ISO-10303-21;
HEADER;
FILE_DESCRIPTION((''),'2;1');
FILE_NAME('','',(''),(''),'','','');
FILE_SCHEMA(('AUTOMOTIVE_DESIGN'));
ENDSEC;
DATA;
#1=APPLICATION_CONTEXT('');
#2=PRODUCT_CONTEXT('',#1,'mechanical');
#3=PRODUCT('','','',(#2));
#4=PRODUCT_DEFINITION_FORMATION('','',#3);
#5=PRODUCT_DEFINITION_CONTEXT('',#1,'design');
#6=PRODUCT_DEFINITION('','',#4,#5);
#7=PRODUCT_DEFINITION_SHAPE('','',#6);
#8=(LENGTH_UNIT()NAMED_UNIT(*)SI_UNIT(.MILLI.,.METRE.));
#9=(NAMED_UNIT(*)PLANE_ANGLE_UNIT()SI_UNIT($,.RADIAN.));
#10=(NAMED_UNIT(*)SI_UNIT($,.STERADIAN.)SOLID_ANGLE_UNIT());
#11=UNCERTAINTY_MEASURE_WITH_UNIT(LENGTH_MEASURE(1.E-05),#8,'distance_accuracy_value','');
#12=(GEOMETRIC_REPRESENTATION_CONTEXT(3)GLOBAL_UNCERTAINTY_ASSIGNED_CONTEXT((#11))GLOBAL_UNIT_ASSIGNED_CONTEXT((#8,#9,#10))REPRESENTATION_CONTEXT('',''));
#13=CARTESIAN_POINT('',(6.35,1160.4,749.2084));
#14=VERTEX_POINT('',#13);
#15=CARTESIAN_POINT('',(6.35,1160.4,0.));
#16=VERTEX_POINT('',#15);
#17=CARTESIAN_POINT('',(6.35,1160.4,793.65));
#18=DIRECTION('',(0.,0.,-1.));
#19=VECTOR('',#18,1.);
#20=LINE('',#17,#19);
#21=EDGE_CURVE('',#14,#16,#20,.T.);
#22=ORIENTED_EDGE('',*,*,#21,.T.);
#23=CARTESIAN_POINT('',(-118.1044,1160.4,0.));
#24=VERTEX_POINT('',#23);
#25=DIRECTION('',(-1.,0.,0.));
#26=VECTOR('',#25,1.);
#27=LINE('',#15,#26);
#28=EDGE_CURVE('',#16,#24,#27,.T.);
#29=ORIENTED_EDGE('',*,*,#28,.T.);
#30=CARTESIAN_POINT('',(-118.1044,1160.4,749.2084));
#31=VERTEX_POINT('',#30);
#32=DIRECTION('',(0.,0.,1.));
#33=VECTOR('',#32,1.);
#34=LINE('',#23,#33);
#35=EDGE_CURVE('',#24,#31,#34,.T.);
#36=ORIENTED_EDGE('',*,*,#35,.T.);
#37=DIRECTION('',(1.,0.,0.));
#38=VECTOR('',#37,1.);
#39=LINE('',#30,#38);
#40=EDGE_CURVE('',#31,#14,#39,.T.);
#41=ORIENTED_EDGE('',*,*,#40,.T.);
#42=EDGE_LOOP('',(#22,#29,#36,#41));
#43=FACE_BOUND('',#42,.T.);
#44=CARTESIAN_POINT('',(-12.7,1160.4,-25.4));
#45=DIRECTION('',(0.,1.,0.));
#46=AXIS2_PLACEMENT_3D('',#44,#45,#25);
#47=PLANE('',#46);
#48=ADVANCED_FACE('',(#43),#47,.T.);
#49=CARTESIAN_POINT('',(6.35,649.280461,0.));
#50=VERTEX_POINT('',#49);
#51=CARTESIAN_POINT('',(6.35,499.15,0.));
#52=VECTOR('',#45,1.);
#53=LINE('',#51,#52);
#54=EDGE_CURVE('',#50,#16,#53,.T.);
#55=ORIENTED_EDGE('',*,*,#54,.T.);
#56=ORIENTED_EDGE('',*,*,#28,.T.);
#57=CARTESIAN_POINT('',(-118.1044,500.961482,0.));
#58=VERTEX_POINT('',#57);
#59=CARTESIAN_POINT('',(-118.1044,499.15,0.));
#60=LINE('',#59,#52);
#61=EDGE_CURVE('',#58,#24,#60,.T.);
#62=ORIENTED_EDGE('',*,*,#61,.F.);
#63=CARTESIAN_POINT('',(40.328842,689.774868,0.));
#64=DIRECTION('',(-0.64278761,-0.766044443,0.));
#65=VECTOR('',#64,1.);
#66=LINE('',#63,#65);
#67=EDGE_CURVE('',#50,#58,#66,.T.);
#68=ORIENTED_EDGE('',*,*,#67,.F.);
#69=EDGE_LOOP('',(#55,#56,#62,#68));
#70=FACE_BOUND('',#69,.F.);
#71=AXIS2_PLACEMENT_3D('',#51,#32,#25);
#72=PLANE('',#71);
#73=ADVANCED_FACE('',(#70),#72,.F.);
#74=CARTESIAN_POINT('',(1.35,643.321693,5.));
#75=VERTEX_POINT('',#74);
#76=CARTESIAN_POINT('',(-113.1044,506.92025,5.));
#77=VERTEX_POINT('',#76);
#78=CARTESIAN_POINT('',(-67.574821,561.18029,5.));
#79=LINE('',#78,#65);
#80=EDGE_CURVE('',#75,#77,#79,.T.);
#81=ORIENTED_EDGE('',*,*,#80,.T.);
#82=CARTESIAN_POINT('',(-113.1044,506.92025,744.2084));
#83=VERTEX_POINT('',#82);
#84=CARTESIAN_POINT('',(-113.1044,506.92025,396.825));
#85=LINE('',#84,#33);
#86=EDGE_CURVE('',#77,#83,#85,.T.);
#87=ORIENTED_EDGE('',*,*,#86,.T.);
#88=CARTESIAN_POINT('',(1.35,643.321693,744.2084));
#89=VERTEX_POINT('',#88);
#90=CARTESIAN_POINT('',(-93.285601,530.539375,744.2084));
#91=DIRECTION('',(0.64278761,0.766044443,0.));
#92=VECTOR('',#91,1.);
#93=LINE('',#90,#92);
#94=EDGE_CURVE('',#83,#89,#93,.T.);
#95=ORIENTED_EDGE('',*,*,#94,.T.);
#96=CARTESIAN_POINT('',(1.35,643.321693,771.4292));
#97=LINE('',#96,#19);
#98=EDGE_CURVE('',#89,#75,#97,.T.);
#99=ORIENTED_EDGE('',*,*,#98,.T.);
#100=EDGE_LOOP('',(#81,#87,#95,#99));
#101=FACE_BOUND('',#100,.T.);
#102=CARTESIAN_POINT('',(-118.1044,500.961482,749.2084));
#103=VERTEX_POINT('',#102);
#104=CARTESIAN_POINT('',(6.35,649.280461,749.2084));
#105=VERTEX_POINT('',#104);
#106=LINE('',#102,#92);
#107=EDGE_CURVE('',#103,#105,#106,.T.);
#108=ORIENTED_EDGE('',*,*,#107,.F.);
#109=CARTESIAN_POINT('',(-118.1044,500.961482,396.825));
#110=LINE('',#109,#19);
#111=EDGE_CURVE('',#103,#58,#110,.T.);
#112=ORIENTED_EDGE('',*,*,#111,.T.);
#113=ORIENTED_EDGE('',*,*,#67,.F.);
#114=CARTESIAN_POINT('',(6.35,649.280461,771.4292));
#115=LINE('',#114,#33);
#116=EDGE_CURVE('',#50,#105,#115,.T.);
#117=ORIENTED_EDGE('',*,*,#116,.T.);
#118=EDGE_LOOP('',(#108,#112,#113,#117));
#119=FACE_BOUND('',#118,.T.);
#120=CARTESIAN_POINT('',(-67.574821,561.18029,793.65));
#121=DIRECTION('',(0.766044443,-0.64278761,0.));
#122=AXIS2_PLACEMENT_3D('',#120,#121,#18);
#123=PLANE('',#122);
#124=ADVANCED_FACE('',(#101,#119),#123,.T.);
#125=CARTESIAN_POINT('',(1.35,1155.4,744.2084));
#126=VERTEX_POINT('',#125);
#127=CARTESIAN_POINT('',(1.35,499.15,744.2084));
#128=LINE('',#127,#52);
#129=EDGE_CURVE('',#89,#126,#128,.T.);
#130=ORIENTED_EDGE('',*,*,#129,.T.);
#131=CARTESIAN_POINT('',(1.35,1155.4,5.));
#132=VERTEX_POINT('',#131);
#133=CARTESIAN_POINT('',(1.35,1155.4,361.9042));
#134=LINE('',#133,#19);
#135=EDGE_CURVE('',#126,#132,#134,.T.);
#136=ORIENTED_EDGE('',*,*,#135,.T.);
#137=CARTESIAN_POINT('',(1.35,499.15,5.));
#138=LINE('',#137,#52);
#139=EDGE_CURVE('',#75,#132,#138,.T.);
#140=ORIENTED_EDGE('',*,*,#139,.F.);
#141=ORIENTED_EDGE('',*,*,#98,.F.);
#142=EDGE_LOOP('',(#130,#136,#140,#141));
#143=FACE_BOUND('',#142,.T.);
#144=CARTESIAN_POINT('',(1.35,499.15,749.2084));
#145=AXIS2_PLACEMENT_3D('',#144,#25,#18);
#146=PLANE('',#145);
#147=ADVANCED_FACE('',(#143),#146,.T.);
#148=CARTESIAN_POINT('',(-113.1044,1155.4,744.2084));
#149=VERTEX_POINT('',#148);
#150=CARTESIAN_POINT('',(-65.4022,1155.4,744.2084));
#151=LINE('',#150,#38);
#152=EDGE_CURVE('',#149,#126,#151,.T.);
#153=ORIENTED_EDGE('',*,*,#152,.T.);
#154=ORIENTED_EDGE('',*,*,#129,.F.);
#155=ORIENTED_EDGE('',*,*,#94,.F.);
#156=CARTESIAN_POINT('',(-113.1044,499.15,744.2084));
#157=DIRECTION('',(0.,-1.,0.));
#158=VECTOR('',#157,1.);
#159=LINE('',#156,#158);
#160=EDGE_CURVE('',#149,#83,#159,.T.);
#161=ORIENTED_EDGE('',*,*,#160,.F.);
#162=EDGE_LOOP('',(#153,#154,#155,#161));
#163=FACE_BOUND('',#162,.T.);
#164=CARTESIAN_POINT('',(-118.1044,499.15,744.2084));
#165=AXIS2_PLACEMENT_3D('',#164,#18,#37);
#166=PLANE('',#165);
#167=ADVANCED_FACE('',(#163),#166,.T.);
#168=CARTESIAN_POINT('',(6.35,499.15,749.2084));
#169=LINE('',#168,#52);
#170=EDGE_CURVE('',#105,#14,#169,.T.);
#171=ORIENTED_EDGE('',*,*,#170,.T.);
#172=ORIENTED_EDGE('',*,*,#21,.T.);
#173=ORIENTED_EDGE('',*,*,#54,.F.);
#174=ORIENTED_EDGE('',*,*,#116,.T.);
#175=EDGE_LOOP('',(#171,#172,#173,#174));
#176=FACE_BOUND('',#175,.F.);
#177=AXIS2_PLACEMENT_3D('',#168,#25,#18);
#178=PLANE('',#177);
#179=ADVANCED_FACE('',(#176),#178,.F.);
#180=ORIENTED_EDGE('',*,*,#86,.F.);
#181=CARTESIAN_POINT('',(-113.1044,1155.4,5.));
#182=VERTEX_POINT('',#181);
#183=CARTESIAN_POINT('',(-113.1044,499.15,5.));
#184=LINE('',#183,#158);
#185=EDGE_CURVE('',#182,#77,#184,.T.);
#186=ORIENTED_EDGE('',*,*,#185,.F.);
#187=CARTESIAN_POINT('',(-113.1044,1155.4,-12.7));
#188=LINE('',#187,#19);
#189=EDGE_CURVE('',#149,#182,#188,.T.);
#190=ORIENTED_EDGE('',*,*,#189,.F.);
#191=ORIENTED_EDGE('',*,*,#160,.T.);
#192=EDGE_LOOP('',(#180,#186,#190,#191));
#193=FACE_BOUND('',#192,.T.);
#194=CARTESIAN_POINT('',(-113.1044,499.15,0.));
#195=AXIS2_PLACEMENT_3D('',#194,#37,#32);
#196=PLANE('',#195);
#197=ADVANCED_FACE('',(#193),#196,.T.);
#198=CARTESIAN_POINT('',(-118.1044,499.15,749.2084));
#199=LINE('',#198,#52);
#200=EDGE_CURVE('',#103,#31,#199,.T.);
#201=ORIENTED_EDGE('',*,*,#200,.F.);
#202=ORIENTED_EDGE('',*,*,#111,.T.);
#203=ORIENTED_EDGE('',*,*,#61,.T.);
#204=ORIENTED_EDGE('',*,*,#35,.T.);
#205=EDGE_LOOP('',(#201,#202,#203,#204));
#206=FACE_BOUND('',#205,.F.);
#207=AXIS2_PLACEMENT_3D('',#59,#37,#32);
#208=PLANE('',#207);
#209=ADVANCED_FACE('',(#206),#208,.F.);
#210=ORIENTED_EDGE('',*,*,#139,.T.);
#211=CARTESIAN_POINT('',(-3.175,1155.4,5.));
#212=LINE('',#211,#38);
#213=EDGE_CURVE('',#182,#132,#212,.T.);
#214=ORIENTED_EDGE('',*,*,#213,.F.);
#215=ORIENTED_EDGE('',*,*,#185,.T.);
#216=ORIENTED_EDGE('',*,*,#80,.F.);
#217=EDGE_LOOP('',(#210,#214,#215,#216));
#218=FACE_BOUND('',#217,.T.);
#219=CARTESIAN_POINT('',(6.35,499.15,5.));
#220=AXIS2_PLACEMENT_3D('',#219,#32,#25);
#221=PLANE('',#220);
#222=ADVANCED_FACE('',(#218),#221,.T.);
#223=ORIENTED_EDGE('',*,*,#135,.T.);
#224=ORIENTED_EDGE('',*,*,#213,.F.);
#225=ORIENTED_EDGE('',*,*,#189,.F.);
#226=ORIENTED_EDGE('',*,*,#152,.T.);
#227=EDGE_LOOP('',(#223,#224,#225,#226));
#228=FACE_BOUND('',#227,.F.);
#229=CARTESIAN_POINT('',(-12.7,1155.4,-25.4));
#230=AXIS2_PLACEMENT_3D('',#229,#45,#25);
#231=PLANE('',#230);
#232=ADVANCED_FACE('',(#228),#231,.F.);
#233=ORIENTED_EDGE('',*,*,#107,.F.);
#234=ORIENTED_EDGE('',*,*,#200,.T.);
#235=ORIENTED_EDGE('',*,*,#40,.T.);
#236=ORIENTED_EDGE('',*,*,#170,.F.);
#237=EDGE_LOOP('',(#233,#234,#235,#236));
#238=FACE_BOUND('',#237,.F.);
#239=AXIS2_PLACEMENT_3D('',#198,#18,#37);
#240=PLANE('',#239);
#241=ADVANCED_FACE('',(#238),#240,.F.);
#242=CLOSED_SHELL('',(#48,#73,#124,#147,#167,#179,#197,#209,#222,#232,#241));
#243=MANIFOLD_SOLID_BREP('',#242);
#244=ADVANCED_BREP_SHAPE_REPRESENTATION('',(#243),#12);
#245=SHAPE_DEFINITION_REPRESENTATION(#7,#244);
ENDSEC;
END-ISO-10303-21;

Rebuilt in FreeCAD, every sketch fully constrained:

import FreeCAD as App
import Part
import Sketcher


def faces_at(feature, points):
    """Names of the faces that lie closest to the given points."""
    faces = feature.Shape.Faces
    near = lambda p: min(range(len(faces)), key=lambda i: faces[i].distToShape(Part.Vertex(*p))[0])
    return sorted({f"Face{near(p) + 1}" for p in points})

doc = App.newDocument("Part")
body = doc.addObject("PartDesign::Body", "Body")

# Sketch on XZ plane
sketch1 = doc.addObject("Sketcher::SketchObject", "Sketch")
body.addObject(sketch1)
sketch1.AttachmentSupport = (doc.XZ_Plane, [""])
sketch1.MapMode = "FlatFace"
sketch1.AttachmentOffset = App.Placement(App.Vector(0, 0, -499.15), App.Rotation())
sketch1.addGeometry(Part.LineSegment(App.Vector(-118.1044, 749.2084, 0), App.Vector(6.35, 749.2084, 0)), False)
sketch1.addGeometry(Part.LineSegment(App.Vector(6.35, 749.2084, 0), App.Vector(6.35, 0, 0)), False)
sketch1.addGeometry(Part.LineSegment(App.Vector(6.35, 0, 0), App.Vector(-118.1044, 0, 0)), False)
sketch1.addGeometry(Part.LineSegment(App.Vector(-118.1044, 0, 0), App.Vector(-118.1044, 749.2084, 0)), False)
sketch1.addConstraint(Sketcher.Constraint("Coincident", 0, 2, 1, 1))
sketch1.addConstraint(Sketcher.Constraint("Coincident", 1, 2, 2, 1))
sketch1.addConstraint(Sketcher.Constraint("Coincident", 2, 2, 3, 1))
sketch1.addConstraint(Sketcher.Constraint("Coincident", 3, 2, 0, 1))
sketch1.addConstraint(Sketcher.Constraint("Horizontal", 0))
sketch1.addConstraint(Sketcher.Constraint("Vertical", 1))
sketch1.addConstraint(Sketcher.Constraint("Horizontal", 2))
sketch1.addConstraint(Sketcher.Constraint("Vertical", 3))
sketch1.addConstraint(Sketcher.Constraint("PointOnObject", 1, 2, -1))
sketch1.addConstraint(Sketcher.Constraint("DistanceX", 0, 1, 0, 2, 124.4544))
sketch1.addConstraint(Sketcher.Constraint("DistanceY", 1, 2, 1, 1, 749.2084))
sketch1.addConstraint(Sketcher.Constraint("DistanceX", -1, 1, 0, 2, 6.35))
pad1 = doc.addObject("PartDesign::Pad", "Pad")
body.addObject(pad1)
pad1.Profile = sketch1
pad1.Length = 661.25
pad1.Reversed = True

# Sketch on an angled plane
sketch2 = doc.addObject("Sketcher::SketchObject", "Sketch001")
body.addObject(sketch2)
sketch2.Placement = App.Placement(App.Vector(6.35, 499.15, 793.65), App.Rotation(App.Vector(0, 0, -1), App.Vector(0.64278761, 0.766044443, 0), App.Vector(0.766044443, -0.64278761, 0), "ZXY"))
sketch2.addGeometry(Part.LineSegment(App.Vector(44.4416, 167.8683, 0), App.Vector(44.4416, -166.4116, 0)), False)
sketch2.addGeometry(Part.LineSegment(App.Vector(44.4416, -166.4116, 0), App.Vector(793.65, -166.4116, 0)), False)
sketch2.addGeometry(Part.LineSegment(App.Vector(793.65, -166.4116, 0), App.Vector(793.65, 167.8683, 0)), False)
sketch2.addGeometry(Part.LineSegment(App.Vector(793.65, 167.8683, 0), App.Vector(44.4416, 167.8683, 0)), False)
sketch2.addConstraint(Sketcher.Constraint("Coincident", 0, 2, 1, 1))
sketch2.addConstraint(Sketcher.Constraint("Coincident", 1, 2, 2, 1))
sketch2.addConstraint(Sketcher.Constraint("Coincident", 2, 2, 3, 1))
sketch2.addConstraint(Sketcher.Constraint("Coincident", 3, 2, 0, 1))
sketch2.addConstraint(Sketcher.Constraint("Vertical", 0))
sketch2.addConstraint(Sketcher.Constraint("Horizontal", 1))
sketch2.addConstraint(Sketcher.Constraint("Vertical", 2))
sketch2.addConstraint(Sketcher.Constraint("Horizontal", 3))
sketch2.addConstraint(Sketcher.Constraint("DistanceY", 0, 2, 0, 1, 334.28))
sketch2.addConstraint(Sketcher.Constraint("DistanceX", -1, 1, 1, 2, 793.65))
sketch2.addConstraint(Sketcher.Constraint("DistanceX", 1, 1, 1, 2, 749.2084))
sketch2.addConstraint(Sketcher.Constraint("DistanceY", 0, 2, -1, 1, 166.4116))
pocket1 = doc.addObject("PartDesign::Pocket", "Pocket")
body.addObject(pocket1)
pocket1.Profile = sketch2
pocket1.Length = 96.5
doc.recompute()

thickness = doc.addObject("PartDesign::Thickness", "Thickness")
body.addObject(thickness)
thickness.Base = (pocket1, faces_at(pocket1, [(-35.135, 599.838, 499.472)]))
thickness.Value = 5
thickness.Reversed = True
thickness.Join = "Intersection"

doc.recompute()
